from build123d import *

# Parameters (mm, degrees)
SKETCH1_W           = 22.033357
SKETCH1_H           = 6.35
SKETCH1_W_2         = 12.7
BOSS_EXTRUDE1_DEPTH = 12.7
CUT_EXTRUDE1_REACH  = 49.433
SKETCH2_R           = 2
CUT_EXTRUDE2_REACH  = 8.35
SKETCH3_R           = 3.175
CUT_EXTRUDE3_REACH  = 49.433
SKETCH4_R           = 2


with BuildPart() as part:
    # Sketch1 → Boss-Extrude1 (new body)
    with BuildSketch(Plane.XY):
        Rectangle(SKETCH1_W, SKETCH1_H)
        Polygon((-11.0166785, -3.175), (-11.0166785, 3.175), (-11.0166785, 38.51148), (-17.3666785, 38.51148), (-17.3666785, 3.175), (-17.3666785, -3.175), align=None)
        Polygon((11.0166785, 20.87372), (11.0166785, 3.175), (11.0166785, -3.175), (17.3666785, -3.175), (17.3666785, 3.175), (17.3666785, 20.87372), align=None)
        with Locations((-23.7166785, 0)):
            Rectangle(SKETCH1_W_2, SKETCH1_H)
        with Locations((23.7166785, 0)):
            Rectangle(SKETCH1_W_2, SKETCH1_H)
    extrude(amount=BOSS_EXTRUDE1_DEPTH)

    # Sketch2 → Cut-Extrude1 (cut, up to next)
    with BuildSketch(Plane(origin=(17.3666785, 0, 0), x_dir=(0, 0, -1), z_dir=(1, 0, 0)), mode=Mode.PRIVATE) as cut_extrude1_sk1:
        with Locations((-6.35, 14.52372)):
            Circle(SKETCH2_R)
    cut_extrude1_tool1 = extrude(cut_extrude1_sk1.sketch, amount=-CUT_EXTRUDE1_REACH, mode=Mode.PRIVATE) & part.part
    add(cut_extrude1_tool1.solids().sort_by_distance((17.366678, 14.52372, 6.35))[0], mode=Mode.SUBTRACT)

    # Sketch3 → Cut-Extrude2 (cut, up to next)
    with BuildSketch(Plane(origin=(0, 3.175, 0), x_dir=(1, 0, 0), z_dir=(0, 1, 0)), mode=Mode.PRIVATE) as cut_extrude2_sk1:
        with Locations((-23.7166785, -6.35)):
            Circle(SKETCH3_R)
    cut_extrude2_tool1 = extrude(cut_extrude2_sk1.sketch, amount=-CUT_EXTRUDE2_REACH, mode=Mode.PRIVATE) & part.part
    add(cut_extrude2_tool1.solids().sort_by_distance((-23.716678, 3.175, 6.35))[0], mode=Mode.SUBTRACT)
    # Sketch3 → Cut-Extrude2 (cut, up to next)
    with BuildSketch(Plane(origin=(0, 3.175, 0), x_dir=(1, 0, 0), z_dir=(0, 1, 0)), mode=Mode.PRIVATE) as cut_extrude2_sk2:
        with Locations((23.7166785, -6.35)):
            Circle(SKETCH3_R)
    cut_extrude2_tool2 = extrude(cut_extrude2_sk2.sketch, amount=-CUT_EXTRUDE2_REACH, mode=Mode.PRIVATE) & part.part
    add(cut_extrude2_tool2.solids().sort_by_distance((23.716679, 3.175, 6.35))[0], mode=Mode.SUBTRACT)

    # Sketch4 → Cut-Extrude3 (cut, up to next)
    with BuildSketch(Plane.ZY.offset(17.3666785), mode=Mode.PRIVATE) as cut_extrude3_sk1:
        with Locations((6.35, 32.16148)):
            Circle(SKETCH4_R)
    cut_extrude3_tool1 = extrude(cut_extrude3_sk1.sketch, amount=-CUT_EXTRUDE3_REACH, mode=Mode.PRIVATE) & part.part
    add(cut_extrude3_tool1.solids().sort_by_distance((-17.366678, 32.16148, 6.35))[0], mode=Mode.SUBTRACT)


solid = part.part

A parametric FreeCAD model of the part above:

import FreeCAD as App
import Part
import Sketcher

V = App.Vector
Q = App.Units.Quantity


def add_polygon(sketch, points):
    """Adds a closed chain of lines whose ends are joined by coincident constraints."""
    first, n = sketch.GeometryCount, len(points)
    for a, b in zip(points, points[1:] + points[:1]):
        sketch.addGeometry(Part.LineSegment(App.Vector(*a, 0), App.Vector(*b, 0)), False)
    for i in range(n):
        sketch.addConstraint(Sketcher.Constraint("Coincident", first + i, 2, first + (i + 1) % n, 1))

doc = App.newDocument("Part")
params = doc.addObject("Spreadsheet::Sheet", "Params")
for row, (alias, value) in enumerate([
    ("sketch1_width", "0.5 in"),
    ("sketch1_width2", "0.25 in"),
    ("pad1_length", "0.5 in"),
    ("sketch3_diameter", "0.25 in"),
    ("sketch4_diameter", "0.25 in"),
], start=1):
    params.set(f"A{row}", alias)
    params.set(f"B{row}", "=" + value)
    params.setAlias(f"B{row}", alias)

body = doc.addObject("PartDesign::Body", "Body")

# Sketch on XY plane
sketch1 = body.newObject("Sketcher::SketchObject", "Sketch")
sketch1.AttachmentSupport = (doc.getObject("XY_Plane"), [""])
sketch1.MapMode = "FlatFace"
add_polygon(sketch1, [(11, 3), (-11, 3), (-11, 39), (-17, 39), (-17, 3), (-30, 3), (-30, -3), (30, -3), (30, 3), (17, 3), (17, 21), (11, 21)])  # lines 0-11
sketch1.addConstraint([
    Sketcher.Constraint("Horizontal", 0),
    Sketcher.Constraint("Vertical", 1),
    Sketcher.Constraint("Horizontal", 2),
    Sketcher.Constraint("Vertical", 3),
    Sketcher.Constraint("Horizontal", 4),
    Sketcher.Constraint("Vertical", 5),
    Sketcher.Constraint("Horizontal", 6),
    Sketcher.Constraint("Vertical", 7),
    Sketcher.Constraint("Horizontal", 8),
    Sketcher.Constraint("Vertical", 9),
    Sketcher.Constraint("Horizontal", 10),
    Sketcher.Constraint("Vertical", 11),
    Sketcher.Constraint("Symmetric", 4, 2, 6, 2, -1, 1),
    Sketcher.Constraint("Symmetric", 3, 2, 8, 2, -2),
    Sketcher.Constraint("Horizontal", 0, 2, 3, 2),
    Sketcher.Constraint("Equal", 2, 10),
    Sketcher.Constraint("Equal", 10, 5),
    Sketcher.Constraint("DistanceX", 4, 2, 4, 1, Q("0.5 in")),
    Sketcher.Constraint("DistanceX", 2, 2, 2, 1, Q("0.25 in")),
    Sketcher.Constraint("DistanceY", 1, 1, 1, 2, Q("1.3912 in")),
    Sketcher.Constraint("DistanceY", 9, 1, 9, 2, Q("0.6968 in")),
    Sketcher.Constraint("DistanceX", 0, 2, 0, 1, 22.033357),
])
sketch1.setExpression("Constraints[29]", "Params.sketch1_width")
sketch1.setExpression("Constraints[30]", "Params.sketch1_width2")
pad1 = body.newObject("PartDesign::Pad", "Pad")
pad1.Profile = sketch1
pad1.setExpression("Length", "Params.pad1_length")

# Sketch on YZ plane
sketch2 = body.newObject("Sketcher::SketchObject", "Sketch001")
sketch2.AttachmentSupport = (doc.getObject("YZ_Plane"), [""])
sketch2.MapMode = "FlatFace"
sketch2.AttachmentOffset = App.Placement(V(0, 0, 17.366678), App.Rotation())
sketch2.addGeometry(Part.Circle(V(14.5, 6.3, 0), V(0, 0, 1), 2), False)
sketch2.addConstraint([
    Sketcher.Constraint("Diameter", 0, 4.0),
    Sketcher.Constraint("DistanceY", -1, 1, 0, 3, Q("0.25 in")),
    Sketcher.Constraint("DistanceX", -1, 1, 0, 3, Q("0.5718 in")),
])
pocket1 = body.newObject("PartDesign::Pocket", "Pocket")
pocket1.Profile = sketch2
pocket1.Type = "UpToFirst"

# Sketch on XZ plane
sketch3 = body.newObject("Sketcher::SketchObject", "Sketch002")
sketch3.AttachmentSupport = (doc.getObject("XZ_Plane"), [""])
sketch3.MapMode = "FlatFace"
sketch3.AttachmentOffset = App.Placement(V(0, 0, -0.125 * 25.4), App.Rotation())
sketch3.addGeometry(Part.Circle(V(-23.7, 6.3, 0), V(0, 0, 1), 3.2), False)
sketch3.addConstraint([
    Sketcher.Constraint("Diameter", 0, Q("0.25 in")),
    Sketcher.Constraint("DistanceY", -1, 1, 0, 3, Q("0.25 in")),
    Sketcher.Constraint("DistanceX", 0, 3, -1, 1, 23.716679),
])
sketch3.setExpression("Constraints[0]", "Params.sketch3_diameter")
pocket2 = body.newObject("PartDesign::Pocket", "Pocket001")
pocket2.Profile = sketch3
pocket2.Type = "UpToFirst"
pocket2.Reversed = True

# Sketch on XZ plane
sketch4 = body.newObject("Sketcher::SketchObject", "Sketch003")
sketch4.AttachmentSupport = (doc.getObject("XZ_Plane"), [""])
sketch4.MapMode = "FlatFace"
sketch4.AttachmentOffset = App.Placement(V(0, 0, -0.125 * 25.4), App.Rotation())
sketch4.addGeometry(Part.Circle(V(23.7, 6.3, 0), V(0, 0, 1), 3.2), False)
sketch4.addConstraint([
    Sketcher.Constraint("Diameter", 0, Q("0.25 in")),
    Sketcher.Constraint("DistanceY", -1, 1, 0, 3, Q("0.25 in")),
    Sketcher.Constraint("DistanceX", -1, 1, 0, 3, 23.716679),
])
sketch4.setExpression("Constraints[0]", "Params.sketch4_diameter")
pocket3 = body.newObject("PartDesign::Pocket", "Pocket002")
pocket3.Profile = sketch4
pocket3.Type = "UpToFirst"
pocket3.Reversed = True

# Sketch on YZ plane
sketch5 = body.newObject("Sketcher::SketchObject", "Sketch004")
sketch5.AttachmentSupport = (doc.getObject("YZ_Plane"), [""])
sketch5.MapMode = "FlatFace"
sketch5.AttachmentOffset = App.Placement(V(0, 0, -17.366678), App.Rotation())
sketch5.addGeometry(Part.Circle(V(32.2, 6.3, 0), V(0, 0, 1), 2), False)
sketch5.addConstraint([
    Sketcher.Constraint("Diameter", 0, 4.0),
    Sketcher.Constraint("DistanceY", -1, 1, 0, 3, Q("0.25 in")),
    Sketcher.Constraint("DistanceX", -1, 1, 0, 3, Q("1.2662 in")),
])
pocket4 = body.newObject("PartDesign::Pocket", "Pocket003")
pocket4.Profile = sketch5
pocket4.Type = "UpToFirst"
pocket4.Reversed = True

doc.recompute()
